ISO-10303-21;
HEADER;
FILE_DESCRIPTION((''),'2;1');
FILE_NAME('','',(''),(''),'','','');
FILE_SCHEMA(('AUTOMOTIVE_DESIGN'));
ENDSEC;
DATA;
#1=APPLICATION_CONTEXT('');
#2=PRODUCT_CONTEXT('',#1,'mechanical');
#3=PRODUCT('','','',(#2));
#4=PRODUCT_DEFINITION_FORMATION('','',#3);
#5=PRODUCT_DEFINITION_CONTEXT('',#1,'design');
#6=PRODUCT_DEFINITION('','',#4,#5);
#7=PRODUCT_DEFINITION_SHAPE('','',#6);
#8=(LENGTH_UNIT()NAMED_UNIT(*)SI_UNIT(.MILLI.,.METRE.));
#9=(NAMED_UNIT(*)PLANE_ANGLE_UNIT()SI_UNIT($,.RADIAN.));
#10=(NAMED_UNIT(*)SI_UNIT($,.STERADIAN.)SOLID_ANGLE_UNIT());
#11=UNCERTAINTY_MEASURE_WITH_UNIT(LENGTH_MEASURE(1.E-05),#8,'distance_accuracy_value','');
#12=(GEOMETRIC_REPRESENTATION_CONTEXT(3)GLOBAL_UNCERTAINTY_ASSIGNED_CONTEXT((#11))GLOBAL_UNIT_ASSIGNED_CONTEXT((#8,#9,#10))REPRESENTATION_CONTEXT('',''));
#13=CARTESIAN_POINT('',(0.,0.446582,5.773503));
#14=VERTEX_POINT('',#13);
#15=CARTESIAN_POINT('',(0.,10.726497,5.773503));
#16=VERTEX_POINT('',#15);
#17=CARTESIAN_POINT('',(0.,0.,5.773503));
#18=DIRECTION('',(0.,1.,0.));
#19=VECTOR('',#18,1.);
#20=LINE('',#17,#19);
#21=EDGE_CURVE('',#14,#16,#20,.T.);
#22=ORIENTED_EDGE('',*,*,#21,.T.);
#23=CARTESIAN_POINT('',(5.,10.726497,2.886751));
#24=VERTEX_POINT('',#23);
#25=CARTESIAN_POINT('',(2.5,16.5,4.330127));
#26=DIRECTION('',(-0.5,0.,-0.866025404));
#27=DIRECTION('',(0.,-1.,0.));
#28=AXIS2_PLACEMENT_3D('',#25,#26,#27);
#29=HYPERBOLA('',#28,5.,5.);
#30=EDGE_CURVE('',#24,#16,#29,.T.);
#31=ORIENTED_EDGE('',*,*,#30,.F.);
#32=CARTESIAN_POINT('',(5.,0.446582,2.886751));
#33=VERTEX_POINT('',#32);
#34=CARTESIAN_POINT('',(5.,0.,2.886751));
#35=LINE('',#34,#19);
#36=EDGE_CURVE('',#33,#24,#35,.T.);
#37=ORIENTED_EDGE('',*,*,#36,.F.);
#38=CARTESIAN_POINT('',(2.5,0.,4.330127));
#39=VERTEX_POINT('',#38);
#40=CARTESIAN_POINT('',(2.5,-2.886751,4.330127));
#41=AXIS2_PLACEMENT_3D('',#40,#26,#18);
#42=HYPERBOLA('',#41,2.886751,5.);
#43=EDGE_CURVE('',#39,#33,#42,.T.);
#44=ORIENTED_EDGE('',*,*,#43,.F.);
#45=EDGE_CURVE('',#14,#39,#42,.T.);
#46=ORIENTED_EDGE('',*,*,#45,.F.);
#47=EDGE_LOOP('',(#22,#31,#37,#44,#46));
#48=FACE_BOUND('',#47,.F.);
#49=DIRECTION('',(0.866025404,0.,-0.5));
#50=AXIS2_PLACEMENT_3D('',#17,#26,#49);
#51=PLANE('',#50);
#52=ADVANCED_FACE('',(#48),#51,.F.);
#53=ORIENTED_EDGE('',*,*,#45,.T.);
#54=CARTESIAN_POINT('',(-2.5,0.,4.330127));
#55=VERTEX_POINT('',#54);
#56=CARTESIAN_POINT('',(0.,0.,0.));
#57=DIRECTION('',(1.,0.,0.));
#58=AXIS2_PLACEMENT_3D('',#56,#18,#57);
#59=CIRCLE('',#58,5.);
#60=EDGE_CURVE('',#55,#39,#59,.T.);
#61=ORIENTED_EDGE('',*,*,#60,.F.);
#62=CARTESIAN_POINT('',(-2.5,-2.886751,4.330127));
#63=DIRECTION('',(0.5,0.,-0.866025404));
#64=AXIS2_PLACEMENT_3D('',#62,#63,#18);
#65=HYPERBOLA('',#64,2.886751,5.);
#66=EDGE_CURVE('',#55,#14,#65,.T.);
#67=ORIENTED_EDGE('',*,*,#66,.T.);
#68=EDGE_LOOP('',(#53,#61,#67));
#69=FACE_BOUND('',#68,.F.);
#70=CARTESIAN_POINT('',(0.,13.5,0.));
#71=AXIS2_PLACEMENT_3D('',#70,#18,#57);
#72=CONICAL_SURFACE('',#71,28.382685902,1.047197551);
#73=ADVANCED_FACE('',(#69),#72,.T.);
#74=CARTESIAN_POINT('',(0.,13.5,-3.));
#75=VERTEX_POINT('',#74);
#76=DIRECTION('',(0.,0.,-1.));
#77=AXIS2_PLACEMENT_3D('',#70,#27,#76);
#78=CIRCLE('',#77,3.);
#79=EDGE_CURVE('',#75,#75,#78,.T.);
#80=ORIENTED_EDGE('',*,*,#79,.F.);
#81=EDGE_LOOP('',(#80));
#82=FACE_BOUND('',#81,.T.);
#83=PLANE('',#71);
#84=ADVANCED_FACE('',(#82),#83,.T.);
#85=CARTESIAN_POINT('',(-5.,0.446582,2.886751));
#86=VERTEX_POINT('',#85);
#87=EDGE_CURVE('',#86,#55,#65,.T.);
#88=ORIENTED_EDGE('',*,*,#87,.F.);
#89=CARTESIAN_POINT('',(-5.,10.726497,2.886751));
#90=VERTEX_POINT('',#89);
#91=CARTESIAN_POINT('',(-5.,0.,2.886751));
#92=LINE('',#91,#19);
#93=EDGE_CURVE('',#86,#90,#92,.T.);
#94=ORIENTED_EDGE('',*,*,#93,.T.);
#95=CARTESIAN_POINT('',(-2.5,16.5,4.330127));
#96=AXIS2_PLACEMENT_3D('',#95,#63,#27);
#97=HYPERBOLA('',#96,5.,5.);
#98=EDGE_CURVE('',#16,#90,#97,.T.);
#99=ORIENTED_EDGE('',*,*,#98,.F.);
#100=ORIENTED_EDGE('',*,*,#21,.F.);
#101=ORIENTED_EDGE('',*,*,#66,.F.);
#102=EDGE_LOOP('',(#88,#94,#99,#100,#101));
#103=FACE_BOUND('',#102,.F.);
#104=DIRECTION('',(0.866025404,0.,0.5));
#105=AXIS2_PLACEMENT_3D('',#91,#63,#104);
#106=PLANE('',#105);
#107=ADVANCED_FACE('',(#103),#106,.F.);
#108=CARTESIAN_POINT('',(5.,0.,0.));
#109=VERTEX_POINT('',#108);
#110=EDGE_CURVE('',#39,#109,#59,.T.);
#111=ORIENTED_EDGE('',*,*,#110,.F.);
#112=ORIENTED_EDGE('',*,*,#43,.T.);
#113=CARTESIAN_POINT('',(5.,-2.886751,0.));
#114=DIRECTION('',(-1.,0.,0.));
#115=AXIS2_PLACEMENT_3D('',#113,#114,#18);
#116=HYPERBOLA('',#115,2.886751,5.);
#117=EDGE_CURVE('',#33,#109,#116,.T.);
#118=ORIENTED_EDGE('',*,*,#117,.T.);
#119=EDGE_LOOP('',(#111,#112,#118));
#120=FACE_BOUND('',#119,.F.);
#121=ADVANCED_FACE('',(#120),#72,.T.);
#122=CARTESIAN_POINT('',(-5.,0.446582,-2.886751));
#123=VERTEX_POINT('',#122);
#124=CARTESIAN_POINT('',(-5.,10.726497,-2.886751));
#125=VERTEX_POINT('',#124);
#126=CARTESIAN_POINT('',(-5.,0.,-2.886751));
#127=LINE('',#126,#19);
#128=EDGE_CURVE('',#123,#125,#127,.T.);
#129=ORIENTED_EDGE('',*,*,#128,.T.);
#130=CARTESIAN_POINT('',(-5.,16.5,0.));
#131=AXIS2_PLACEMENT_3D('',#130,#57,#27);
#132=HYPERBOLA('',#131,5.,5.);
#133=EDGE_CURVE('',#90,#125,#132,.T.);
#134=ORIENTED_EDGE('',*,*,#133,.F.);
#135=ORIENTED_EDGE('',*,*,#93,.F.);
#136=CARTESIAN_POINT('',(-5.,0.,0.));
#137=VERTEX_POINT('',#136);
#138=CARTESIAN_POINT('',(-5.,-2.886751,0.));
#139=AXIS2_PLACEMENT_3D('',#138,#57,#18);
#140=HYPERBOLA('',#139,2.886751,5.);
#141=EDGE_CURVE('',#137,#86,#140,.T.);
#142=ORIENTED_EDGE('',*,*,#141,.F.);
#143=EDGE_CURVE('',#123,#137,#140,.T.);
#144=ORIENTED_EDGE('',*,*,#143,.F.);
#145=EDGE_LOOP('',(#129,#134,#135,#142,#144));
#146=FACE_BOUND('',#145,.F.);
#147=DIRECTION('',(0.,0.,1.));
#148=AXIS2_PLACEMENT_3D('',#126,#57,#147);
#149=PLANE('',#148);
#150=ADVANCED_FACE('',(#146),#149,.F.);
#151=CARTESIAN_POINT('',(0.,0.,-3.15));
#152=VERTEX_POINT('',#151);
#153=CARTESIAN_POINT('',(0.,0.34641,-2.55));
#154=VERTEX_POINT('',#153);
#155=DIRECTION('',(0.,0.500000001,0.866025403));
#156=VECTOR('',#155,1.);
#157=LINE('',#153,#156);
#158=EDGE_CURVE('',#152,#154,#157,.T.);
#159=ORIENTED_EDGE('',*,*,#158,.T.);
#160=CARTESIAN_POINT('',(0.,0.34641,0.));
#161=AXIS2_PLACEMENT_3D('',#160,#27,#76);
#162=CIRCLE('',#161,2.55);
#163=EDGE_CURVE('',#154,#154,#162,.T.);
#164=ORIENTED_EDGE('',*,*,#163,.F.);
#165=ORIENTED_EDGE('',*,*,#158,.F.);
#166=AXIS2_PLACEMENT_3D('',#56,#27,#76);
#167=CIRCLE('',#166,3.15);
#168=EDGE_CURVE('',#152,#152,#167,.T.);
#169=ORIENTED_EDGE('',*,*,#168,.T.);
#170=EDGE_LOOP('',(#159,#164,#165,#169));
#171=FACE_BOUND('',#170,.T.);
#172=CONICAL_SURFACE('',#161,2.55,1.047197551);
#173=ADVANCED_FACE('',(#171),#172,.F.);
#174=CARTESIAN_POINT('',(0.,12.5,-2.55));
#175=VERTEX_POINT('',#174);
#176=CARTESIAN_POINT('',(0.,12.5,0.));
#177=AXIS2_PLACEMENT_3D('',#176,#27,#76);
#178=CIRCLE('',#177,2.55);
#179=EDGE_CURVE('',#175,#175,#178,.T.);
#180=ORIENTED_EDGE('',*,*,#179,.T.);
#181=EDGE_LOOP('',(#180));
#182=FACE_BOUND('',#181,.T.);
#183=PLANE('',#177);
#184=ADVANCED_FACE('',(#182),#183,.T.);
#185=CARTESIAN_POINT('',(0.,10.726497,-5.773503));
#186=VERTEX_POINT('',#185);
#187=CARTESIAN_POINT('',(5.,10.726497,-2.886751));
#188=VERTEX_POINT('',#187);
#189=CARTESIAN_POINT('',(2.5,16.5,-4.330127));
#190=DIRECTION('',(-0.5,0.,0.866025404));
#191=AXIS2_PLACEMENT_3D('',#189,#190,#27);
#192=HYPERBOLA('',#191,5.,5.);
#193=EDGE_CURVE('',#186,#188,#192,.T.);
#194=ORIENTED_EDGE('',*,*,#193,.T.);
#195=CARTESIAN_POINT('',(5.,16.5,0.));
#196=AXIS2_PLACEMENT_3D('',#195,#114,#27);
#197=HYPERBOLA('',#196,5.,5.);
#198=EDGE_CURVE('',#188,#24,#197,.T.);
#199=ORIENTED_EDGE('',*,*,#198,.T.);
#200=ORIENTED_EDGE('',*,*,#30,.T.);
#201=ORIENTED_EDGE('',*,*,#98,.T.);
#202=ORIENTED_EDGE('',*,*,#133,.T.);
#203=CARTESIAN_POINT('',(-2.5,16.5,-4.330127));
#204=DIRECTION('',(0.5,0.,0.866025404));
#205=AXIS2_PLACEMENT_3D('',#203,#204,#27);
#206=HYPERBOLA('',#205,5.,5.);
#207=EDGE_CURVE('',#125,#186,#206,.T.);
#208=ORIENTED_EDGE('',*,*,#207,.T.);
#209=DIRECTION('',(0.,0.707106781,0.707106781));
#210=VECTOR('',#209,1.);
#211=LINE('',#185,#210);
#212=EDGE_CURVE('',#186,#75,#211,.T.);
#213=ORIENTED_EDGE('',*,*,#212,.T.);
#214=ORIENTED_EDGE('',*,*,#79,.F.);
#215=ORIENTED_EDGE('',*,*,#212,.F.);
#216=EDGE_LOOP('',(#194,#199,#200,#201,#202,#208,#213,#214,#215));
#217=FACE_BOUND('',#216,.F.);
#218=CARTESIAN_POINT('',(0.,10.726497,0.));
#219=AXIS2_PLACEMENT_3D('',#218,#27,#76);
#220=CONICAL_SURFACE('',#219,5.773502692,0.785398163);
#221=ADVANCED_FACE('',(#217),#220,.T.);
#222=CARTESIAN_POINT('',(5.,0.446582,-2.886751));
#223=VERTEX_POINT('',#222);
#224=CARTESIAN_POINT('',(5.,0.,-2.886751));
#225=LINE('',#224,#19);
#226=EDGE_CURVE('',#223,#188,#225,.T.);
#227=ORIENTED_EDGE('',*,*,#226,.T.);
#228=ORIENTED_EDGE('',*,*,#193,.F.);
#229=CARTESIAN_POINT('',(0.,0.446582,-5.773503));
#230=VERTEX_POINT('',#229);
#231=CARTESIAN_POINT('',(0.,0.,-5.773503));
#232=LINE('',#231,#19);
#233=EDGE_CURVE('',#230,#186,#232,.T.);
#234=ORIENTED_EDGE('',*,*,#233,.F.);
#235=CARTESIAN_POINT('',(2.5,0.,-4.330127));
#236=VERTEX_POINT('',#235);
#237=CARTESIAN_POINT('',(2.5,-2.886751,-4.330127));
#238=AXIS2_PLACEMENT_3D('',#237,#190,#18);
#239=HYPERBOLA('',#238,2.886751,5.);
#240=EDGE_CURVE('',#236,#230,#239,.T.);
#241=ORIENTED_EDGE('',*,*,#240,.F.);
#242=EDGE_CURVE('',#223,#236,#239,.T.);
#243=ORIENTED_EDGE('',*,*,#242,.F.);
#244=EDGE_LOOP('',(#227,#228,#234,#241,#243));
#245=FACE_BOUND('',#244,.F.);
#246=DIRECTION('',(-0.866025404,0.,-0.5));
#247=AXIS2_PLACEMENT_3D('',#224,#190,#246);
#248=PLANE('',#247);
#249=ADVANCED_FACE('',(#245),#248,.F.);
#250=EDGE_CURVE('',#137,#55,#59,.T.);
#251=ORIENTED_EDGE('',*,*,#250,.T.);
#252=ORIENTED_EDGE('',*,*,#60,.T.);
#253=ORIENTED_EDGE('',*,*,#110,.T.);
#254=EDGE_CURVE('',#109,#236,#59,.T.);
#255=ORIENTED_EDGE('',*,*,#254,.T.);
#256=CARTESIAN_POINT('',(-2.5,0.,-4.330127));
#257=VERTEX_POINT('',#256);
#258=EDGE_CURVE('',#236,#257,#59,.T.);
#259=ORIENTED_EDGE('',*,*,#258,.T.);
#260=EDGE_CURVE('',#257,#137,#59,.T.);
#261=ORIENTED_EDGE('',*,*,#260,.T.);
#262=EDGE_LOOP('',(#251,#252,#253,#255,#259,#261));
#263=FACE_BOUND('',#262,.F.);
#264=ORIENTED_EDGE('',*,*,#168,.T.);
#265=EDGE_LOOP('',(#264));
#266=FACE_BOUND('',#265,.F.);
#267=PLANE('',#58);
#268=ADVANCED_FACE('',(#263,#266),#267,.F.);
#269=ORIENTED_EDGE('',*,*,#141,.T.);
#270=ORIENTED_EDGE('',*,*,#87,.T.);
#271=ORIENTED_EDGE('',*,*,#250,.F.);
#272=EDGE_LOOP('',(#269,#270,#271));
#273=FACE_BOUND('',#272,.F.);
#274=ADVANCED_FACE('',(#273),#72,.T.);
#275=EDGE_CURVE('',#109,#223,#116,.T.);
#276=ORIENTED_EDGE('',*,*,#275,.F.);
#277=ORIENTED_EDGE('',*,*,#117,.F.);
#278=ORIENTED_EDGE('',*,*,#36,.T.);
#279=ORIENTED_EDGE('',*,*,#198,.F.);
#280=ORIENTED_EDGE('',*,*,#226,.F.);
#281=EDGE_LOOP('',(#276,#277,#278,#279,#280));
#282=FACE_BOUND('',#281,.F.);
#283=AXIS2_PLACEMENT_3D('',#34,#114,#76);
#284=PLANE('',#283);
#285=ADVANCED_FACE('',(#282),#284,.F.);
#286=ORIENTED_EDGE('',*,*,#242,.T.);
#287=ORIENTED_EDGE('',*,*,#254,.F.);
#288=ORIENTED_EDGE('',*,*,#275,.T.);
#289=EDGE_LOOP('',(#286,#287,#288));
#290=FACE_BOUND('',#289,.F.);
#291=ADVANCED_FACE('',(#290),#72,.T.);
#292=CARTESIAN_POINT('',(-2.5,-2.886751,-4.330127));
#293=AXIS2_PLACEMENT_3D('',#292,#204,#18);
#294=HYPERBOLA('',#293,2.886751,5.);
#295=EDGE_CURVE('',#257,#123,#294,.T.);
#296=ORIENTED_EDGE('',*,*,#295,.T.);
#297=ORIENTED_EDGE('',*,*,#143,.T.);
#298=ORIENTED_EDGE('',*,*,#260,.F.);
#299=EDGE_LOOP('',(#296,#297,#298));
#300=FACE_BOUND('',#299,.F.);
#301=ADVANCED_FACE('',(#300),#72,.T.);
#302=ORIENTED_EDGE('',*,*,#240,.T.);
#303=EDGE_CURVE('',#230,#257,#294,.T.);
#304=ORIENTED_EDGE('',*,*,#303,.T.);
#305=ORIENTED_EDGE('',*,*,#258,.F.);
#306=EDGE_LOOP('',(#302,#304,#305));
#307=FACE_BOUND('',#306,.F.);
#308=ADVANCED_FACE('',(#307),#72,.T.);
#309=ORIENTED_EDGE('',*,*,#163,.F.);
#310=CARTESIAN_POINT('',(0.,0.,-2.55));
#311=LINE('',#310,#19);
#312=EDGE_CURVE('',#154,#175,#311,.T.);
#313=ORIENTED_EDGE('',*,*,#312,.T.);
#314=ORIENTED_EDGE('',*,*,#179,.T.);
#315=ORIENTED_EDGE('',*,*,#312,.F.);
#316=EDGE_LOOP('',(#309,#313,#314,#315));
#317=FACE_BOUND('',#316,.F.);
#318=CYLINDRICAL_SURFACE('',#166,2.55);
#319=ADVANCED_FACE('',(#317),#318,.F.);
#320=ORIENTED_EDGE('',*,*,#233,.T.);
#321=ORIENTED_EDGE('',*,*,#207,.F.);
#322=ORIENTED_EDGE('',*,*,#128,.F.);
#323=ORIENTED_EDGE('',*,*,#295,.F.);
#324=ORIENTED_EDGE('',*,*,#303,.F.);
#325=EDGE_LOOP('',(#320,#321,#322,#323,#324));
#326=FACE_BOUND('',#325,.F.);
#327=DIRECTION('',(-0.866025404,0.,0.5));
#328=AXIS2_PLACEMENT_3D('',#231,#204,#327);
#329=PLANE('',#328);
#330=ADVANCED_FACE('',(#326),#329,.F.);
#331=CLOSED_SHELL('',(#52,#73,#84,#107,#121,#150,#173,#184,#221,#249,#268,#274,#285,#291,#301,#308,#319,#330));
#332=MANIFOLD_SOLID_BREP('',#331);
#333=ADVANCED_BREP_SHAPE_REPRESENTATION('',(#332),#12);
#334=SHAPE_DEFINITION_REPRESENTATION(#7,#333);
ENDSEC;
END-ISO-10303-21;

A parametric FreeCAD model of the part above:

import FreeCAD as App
import Part
import Sketcher
Q = App.Units.Quantity


def edges_at(feature, points):
    """Names of the edges that pass closest to the given points."""
    edges = feature.Shape.Edges
    near = lambda p: min(range(len(edges)), key=lambda i: edges[i].distToShape(Part.Vertex(*p))[0])
    return sorted({f"Edge{near(p) + 1}" for p in points})


def add_polygon(sketch, points):
    """Adds a closed chain of lines whose ends are joined by coincident constraints."""
    first, n = sketch.GeometryCount, len(points)
    for a, b in zip(points, points[1:] + points[:1]):
        sketch.addGeometry(Part.LineSegment(App.Vector(*a, 0), App.Vector(*b, 0)), False)
    for i in range(n):
        sketch.addConstraint(Sketcher.Constraint("Coincident", first + i, 2, first + (i + 1) % n, 1))

doc = App.newDocument("Part")
body = doc.addObject("PartDesign::Body", "Body")

sketch1 = doc.addObject("Sketcher::SketchObject", "Sketch")
body.addObject(sketch1)
sketch1.AttachmentSupport = (doc.XZ_Plane, [""])
sketch1.MapMode = "FlatFace"
add_polygon(sketch1, [(5, 2.886751), (5, -2.886751), (0, -5.773503), (-5, -2.886751), (-5, 2.886751), (0, 5.773503)])
sketch1.addConstraint(Sketcher.Constraint("Vertical", 0))
sketch1.addConstraint(Sketcher.Constraint("Vertical", 3))
sketch1.addConstraint(Sketcher.Constraint("Symmetric", 0, 2, 3, 2, -1, 1))
sketch1.addConstraint(Sketcher.Constraint("Symmetric", 1, 2, 4, 2, -1, 1))
sketch1.addConstraint(Sketcher.Constraint("PointOnObject", 1, 2, -2))
sketch1.addConstraint(Sketcher.Constraint("Parallel", 2, 5))
sketch1.addConstraint(Sketcher.Constraint("Horizontal", 0, 2, 2, 2))
sketch1.addConstraint(Sketcher.Constraint("Angle", 1, Q("-150 deg")))
sketch1.addConstraint(Sketcher.Constraint("DistanceX", -1, 1, 0, 2, Q("5 mm")))
sketch1.addConstraint(Sketcher.Constraint("DistanceY", 0, 2, 0, 1, Q("5.773503 mm")))
pad1 = doc.addObject("PartDesign::Pad", "Pad")
body.addObject(pad1)
pad1.Profile = sketch1
pad1.Length = 13.5
pad1.Reversed = True

sketch2 = doc.addObject("Sketcher::SketchObject", "Sketch001")
body.addObject(sketch2)
sketch2.AttachmentSupport = (doc.YZ_Plane, [""])
sketch2.MapMode = "FlatFace"
add_polygon(sketch2, [(13.5, 5.773503), (10.726497, 5.773503), (13.5, 3)])
sketch2.addConstraint(Sketcher.Constraint("Horizontal", 0))
sketch2.addConstraint(Sketcher.Constraint("Vertical", 2))
sketch2.addConstraint(Sketcher.Constraint("Equal", 0, 2))
sketch2.addConstraint(Sketcher.Constraint("DistanceY", -1, 1, 1, 2, Q("3 mm")))
sketch2.addConstraint(Sketcher.Constraint("DistanceX", -1, 1, 1, 2, Q("13.5 mm")))
sketch2.addConstraint(Sketcher.Constraint("DistanceX", 0, 2, 0, 1, Q("2.773503 mm")))
groove = doc.addObject("PartDesign::Groove", "Groove")
body.addObject(groove)
groove.Profile = sketch2
groove.ReferenceAxis = (sketch2, ["H_Axis"])
groove.Angle = 360

sketch3 = doc.addObject("Sketcher::SketchObject", "Sketch002")
body.addObject(sketch3)
sketch3.AttachmentSupport = (doc.XY_Plane, [""])
sketch3.MapMode = "FlatFace"
add_polygon(sketch3, [(5, 0), (28.382686, 0), (28.382686, 13.5)])
sketch3.addConstraint(Sketcher.Constraint("Horizontal", 0))
sketch3.addConstraint(Sketcher.Constraint("Vertical", 1))
sketch3.addConstraint(Sketcher.Constraint("PointOnObject", 0, 2, -1))
sketch3.addConstraint(Sketcher.Constraint("Angle", 2, Q("-150 deg")))
sketch3.addConstraint(Sketcher.Constraint("Distance", 2, Q("27 mm")))
sketch3.addConstraint(Sketcher.Constraint("DistanceX", -1, 1, 2, 2, Q("5 mm")))
groove2 = doc.addObject("PartDesign::Groove", "Groove001")
body.addObject(groove2)
groove2.Profile = sketch3
groove2.ReferenceAxis = (sketch3, ["V_Axis"])
groove2.Angle = 360

sketch4 = doc.addObject("Sketcher::SketchObject", "Sketch003")
body.addObject(sketch4)
sketch4.AttachmentSupport = (doc.XZ_Plane, [""])
sketch4.MapMode = "FlatFace"
sketch4.addGeometry(Part.Circle(App.Vector(0, 0, 0), App.Vector(0, 0, 1), 2.55), False)
sketch4.addConstraint(Sketcher.Constraint("Coincident", 0, 3, -1, 1))
sketch4.addConstraint(Sketcher.Constraint("Diameter", 0, Q("5.1 mm")))
pocket1 = doc.addObject("PartDesign::Pocket", "Pocket")
body.addObject(pocket1)
pocket1.Profile = sketch4
pocket1.Length = 12.5
doc.recompute()

chamfer = doc.addObject("PartDesign::Chamfer", "Chamfer")
body.addObject(chamfer)
chamfer.Base = (pocket1, edges_at(pocket1, [(0, 0, 2.55)]))
chamfer.ChamferType = "Two distances"
chamfer.Size = 0.6
chamfer.Size2 = 0.34641

doc.recompute()
